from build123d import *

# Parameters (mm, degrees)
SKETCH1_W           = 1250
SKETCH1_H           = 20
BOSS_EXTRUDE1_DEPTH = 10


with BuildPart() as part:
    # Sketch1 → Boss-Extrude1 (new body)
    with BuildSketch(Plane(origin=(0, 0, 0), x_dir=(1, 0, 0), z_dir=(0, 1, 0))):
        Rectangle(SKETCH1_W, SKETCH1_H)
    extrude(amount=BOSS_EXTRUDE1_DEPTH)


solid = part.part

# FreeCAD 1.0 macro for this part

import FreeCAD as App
import Part
import Sketcher
from FreeCAD import Vector
Q = App.Units.Quantity

doc = App.newDocument("Part")
body = doc.addObject("PartDesign::Body", "Body")

sketch1 = body.newObject("Sketcher::SketchObject", "Sketch")
sketch1.AttachmentSupport = (doc.getObject("XZ_Plane"), [""])
sketch1.MapMode = "FlatFace"
sketch1.addGeometry(Part.LineSegment(Vector(-625, -10, 0), Vector(-625, 10, 0)), False)
sketch1.addGeometry(Part.LineSegment(Vector(-625, 10, 0), Vector(625, 10, 0)), False)
sketch1.addGeometry(Part.LineSegment(Vector(625, 10, 0), Vector(625, -10, 0)), False)
sketch1.addGeometry(Part.LineSegment(Vector(625, -10, 0), Vector(-625, -10, 0)), False)
sketch1.addConstraint(Sketcher.Constraint("Coincident", 0, 2, 1, 1))
sketch1.addConstraint(Sketcher.Constraint("Coincident", 1, 2, 2, 1))
sketch1.addConstraint(Sketcher.Constraint("Coincident", 2, 2, 3, 1))
sketch1.addConstraint(Sketcher.Constraint("Coincident", 3, 2, 0, 1))
sketch1.addConstraint(Sketcher.Constraint("Vertical", 0))
sketch1.addConstraint(Sketcher.Constraint("Horizontal", 1))
sketch1.addConstraint(Sketcher.Constraint("Vertical", 2))
sketch1.addConstraint(Sketcher.Constraint("Horizontal", 3))
sketch1.addConstraint(Sketcher.Constraint("Symmetric", 0, 2, 2, 2, -1, 1))
sketch1.addConstraint(Sketcher.Constraint("DistanceX", 1, 1, 1, 2, Q("1250 mm")))
sketch1.addConstraint(Sketcher.Constraint("DistanceY", 0, 1, 0, 2, Q("20 mm")))
pad1 = body.newObject("PartDesign::Pad", "Pad")
pad1.Profile = sketch1
pad1.Length = 10
pad1.Reversed = True

doc.recompute()
